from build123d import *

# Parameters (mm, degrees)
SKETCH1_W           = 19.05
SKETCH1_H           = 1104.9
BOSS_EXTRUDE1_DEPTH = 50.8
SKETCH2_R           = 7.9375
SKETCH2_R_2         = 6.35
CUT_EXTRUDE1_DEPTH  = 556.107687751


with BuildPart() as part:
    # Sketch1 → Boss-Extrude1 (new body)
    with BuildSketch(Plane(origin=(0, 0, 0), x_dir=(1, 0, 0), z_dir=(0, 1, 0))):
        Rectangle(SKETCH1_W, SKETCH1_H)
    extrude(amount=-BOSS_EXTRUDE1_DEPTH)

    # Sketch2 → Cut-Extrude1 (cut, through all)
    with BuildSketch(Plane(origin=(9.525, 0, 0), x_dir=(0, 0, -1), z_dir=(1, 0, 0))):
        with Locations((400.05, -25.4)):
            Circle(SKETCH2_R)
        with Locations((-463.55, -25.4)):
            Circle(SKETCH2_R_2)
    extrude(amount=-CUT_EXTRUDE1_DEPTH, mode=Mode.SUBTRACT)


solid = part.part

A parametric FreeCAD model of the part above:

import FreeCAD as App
import Part
import Sketcher
from FreeCAD import Vector
Q = App.Units.Quantity

doc = App.newDocument("Part")
body = doc.addObject("PartDesign::Body", "Body")

# Sketch on XZ plane
sketch1 = doc.addObject("Sketcher::SketchObject", "Sketch")
body.addObject(sketch1)
sketch1.AttachmentSupport = (doc.XZ_Plane, [""])
sketch1.MapMode = "FlatFace"
sketch1.addGeometry([
    Part.LineSegment(Vector(-10, -552, 0), Vector(-10, 552, 0)),
    Part.LineSegment(Vector(-10, 552, 0), Vector(10, 552, 0)),
    Part.LineSegment(Vector(10, 552, 0), Vector(10, -552, 0)),
    Part.LineSegment(Vector(10, -552, 0), Vector(-10, -552, 0)),
], False)
sketch1.addConstraint([
    Sketcher.Constraint("Coincident", 0, 2, 1, 1),
    Sketcher.Constraint("Coincident", 1, 2, 2, 1),
    Sketcher.Constraint("Coincident", 2, 2, 3, 1),
    Sketcher.Constraint("Coincident", 3, 2, 0, 1),
    Sketcher.Constraint("Vertical", 0),
    Sketcher.Constraint("Horizontal", 1),
    Sketcher.Constraint("Vertical", 2),
    Sketcher.Constraint("Horizontal", 3),
    Sketcher.Constraint("Symmetric", 0, 2, 2, 2, -1, 1),
    Sketcher.Constraint("DistanceY", 0, 1, 0, 2, Q("43.5 in")),
    Sketcher.Constraint("DistanceX", 1, 1, 1, 2, Q("0.75 in")),
])
pad1 = doc.addObject("PartDesign::Pad", "Pad")
body.addObject(pad1)
pad1.Profile = sketch1
pad1.Length = Q("2 in")

# Sketch on YZ plane
sketch2 = doc.addObject("Sketcher::SketchObject", "Sketch001")
body.addObject(sketch2)
sketch2.AttachmentSupport = (doc.YZ_Plane, [""])
sketch2.MapMode = "FlatFace"
sketch2.AttachmentOffset = App.Placement(Vector(0, 0, 0.375 * 25.4), App.Rotation())
sketch2.addGeometry([
    Part.Circle(Vector(-25, -400, 0), Vector(0, 0, 1), 8),
    Part.Circle(Vector(-25, 464, 0), Vector(0, 0, 1), 6),
], False)
sketch2.addConstraint([
    Sketcher.Constraint("Vertical", 0, 3, 1, 3),
    Sketcher.Constraint("Diameter", 1, Q("0.5 in")),
    Sketcher.Constraint("Diameter", 0, Q("0.625 in")),
    Sketcher.Constraint("DistanceX", 0, 3, -1, 1, Q("1 in")),
    Sketcher.Constraint("DistanceY", 0, 3, 1, 3, Q("34 in")),
    Sketcher.Constraint("DistanceY", 0, 3, -1, 1, Q("15.75 in")),
])
pocket1 = doc.addObject("PartDesign::Pocket", "Pocket")
body.addObject(pocket1)
pocket1.Profile = sketch2
pocket1.Type = "ThroughAll"

doc.recompute()
